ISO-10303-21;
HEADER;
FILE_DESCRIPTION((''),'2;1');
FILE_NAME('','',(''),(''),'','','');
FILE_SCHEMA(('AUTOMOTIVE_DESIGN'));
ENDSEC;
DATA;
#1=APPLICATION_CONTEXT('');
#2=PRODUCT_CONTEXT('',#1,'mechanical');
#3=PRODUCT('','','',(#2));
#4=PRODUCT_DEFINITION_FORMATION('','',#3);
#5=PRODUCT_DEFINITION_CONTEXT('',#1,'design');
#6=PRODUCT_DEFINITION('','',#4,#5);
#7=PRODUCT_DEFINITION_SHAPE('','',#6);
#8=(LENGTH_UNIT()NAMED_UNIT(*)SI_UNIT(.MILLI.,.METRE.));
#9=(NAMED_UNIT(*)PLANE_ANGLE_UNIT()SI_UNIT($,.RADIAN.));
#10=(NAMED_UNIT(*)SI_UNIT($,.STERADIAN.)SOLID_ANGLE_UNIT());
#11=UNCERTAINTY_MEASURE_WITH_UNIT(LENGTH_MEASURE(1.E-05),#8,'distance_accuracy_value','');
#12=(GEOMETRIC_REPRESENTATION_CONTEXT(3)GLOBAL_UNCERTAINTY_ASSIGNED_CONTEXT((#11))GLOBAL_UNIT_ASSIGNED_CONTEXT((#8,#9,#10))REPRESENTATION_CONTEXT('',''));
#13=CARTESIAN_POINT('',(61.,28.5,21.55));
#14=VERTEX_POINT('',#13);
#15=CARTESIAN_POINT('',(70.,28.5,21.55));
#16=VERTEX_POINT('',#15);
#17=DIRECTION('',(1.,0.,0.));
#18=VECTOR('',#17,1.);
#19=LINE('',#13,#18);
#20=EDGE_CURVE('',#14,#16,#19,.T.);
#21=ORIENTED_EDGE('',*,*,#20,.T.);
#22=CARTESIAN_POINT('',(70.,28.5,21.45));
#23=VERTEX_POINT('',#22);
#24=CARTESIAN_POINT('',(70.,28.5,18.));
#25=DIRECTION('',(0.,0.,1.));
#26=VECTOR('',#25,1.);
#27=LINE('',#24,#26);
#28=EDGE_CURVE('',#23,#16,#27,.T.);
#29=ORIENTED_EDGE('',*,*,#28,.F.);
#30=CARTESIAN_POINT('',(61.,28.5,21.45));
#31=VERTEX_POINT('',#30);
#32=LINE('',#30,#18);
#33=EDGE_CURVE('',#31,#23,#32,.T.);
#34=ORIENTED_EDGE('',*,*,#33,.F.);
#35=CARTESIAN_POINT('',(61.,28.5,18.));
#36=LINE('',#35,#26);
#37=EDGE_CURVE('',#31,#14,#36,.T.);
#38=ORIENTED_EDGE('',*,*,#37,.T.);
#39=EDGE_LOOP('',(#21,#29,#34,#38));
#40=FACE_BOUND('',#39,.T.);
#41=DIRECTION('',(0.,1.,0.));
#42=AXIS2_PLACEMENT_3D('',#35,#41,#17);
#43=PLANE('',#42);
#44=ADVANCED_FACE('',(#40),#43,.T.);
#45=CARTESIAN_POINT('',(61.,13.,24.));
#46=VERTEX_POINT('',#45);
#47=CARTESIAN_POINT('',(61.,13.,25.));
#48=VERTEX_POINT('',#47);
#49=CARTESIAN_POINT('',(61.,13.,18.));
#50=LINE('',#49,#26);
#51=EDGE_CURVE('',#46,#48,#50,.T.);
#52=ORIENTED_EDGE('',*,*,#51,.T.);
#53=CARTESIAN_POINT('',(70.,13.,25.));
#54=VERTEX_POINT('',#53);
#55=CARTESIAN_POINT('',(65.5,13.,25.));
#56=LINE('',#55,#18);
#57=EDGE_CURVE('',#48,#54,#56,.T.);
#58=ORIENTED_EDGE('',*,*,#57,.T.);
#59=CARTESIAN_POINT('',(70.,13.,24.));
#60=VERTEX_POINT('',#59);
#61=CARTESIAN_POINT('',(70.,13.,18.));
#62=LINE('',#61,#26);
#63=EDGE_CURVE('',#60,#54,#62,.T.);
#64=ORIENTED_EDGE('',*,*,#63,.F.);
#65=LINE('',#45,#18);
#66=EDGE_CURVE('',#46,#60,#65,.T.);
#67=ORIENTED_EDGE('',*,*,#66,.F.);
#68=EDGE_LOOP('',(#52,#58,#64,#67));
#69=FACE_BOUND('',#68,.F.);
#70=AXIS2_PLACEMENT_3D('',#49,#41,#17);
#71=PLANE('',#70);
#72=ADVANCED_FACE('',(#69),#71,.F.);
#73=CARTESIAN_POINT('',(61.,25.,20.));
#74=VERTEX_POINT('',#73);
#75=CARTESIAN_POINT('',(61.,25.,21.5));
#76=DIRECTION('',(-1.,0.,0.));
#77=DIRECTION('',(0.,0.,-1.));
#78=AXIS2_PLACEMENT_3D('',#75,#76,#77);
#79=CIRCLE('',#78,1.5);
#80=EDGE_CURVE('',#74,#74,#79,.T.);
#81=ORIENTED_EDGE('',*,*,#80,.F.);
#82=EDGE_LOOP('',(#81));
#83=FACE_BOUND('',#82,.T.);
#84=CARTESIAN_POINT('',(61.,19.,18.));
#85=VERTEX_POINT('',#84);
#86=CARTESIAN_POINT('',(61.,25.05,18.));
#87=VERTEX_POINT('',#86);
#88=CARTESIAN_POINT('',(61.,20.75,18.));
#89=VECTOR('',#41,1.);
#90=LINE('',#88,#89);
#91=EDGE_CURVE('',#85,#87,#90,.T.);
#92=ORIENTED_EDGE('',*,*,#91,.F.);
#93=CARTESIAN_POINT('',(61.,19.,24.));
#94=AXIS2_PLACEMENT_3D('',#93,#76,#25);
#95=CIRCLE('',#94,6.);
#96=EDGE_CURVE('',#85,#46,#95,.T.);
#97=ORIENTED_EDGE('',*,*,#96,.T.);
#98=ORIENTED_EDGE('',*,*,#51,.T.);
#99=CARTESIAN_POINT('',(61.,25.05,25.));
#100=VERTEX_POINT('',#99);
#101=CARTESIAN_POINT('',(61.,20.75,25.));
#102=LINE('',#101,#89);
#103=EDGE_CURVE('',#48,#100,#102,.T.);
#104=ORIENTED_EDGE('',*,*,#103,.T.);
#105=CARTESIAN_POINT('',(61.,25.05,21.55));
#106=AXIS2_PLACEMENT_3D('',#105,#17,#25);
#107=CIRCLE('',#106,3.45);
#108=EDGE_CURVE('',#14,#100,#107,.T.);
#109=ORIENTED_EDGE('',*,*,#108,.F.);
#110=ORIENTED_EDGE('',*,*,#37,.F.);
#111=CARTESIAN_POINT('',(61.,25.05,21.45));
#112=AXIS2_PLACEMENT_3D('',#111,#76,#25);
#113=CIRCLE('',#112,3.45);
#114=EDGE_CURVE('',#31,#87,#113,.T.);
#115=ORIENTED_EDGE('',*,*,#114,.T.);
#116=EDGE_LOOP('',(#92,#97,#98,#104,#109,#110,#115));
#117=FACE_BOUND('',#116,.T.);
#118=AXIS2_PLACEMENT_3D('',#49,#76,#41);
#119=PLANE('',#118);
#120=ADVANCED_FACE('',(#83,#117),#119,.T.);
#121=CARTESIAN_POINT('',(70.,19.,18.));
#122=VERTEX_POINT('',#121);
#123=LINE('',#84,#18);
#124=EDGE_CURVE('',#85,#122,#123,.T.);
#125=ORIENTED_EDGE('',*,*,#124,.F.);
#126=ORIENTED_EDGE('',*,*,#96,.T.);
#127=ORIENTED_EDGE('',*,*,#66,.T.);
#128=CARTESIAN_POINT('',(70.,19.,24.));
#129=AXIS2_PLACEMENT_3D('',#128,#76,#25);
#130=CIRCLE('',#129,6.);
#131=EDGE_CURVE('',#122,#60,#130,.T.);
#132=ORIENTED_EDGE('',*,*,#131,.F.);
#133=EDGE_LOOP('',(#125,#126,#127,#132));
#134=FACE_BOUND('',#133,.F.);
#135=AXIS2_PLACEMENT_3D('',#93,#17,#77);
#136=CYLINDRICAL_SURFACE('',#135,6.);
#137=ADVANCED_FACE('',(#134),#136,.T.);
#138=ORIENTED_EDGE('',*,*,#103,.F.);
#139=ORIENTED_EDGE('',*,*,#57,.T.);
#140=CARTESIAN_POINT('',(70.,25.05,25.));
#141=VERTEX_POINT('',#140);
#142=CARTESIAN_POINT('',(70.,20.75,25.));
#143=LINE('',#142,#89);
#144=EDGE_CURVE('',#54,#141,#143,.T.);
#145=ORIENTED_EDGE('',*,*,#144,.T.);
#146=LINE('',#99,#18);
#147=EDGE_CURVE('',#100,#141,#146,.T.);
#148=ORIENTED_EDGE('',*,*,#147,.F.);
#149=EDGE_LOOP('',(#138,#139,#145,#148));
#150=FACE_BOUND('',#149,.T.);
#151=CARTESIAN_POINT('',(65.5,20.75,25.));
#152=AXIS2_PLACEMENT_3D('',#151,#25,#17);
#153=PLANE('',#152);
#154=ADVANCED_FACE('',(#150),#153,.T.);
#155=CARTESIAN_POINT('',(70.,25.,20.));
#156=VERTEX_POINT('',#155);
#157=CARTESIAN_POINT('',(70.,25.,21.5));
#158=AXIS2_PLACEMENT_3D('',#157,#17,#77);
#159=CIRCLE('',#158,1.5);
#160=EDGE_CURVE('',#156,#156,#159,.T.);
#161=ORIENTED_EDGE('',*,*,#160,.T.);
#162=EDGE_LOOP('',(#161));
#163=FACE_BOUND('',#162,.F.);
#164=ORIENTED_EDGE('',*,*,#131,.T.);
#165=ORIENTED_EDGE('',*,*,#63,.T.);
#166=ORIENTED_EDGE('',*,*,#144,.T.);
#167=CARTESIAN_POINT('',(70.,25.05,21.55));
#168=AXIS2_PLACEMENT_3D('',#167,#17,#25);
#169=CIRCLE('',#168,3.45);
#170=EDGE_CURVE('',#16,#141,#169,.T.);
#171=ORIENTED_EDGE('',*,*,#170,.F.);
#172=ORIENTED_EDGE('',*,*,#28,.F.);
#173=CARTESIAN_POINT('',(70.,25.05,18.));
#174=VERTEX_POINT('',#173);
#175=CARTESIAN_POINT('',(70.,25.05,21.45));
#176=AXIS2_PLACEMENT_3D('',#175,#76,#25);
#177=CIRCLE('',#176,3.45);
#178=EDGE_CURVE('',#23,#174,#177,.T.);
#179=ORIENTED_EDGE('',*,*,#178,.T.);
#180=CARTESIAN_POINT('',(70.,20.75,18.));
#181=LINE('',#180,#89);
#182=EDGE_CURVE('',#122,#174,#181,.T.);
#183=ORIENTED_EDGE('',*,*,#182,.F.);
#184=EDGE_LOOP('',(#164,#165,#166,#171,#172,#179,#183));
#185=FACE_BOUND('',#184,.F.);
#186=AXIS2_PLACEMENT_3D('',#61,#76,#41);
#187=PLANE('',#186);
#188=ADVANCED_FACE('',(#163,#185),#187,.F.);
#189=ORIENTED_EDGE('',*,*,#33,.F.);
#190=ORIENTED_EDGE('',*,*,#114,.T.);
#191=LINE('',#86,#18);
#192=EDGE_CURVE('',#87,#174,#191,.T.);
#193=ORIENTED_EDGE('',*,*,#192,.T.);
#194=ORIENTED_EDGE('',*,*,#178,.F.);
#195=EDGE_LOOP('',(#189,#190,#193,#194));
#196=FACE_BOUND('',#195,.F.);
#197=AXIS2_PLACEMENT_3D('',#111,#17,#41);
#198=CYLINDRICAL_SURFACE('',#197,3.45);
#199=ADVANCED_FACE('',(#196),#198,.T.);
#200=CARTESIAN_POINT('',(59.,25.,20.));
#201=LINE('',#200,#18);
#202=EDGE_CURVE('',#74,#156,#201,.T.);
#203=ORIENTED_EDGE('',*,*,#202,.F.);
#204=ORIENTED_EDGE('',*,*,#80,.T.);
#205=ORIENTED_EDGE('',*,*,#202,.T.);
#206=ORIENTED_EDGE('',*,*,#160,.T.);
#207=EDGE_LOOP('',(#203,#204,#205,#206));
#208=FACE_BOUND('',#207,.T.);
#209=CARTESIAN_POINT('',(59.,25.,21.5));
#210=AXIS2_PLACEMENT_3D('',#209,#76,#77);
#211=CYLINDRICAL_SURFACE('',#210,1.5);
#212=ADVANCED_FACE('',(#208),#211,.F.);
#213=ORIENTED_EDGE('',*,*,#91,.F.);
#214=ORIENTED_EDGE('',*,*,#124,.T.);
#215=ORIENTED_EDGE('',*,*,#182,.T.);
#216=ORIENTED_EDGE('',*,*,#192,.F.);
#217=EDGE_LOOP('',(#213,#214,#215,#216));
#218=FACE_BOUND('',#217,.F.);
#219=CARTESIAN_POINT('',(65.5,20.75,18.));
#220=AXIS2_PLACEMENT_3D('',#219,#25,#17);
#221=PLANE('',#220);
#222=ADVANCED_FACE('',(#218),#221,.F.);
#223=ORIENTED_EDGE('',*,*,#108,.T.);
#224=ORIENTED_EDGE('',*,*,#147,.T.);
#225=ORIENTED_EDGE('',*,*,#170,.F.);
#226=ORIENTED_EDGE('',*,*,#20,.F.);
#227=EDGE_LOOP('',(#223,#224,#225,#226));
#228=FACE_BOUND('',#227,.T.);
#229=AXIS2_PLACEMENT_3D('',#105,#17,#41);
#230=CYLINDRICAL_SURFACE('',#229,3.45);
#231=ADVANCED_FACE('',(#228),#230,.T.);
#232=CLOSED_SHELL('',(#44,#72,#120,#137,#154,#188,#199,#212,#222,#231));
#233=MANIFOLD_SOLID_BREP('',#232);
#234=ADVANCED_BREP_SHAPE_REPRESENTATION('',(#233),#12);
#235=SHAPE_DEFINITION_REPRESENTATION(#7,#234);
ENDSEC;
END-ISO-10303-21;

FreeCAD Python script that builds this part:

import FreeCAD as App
import Part
import Sketcher

V = App.Vector
Q = App.Units.Quantity


def edges_at(feature, points):
    """Names of the edges that pass closest to the given points."""
    edges = feature.Shape.Edges
    near = lambda p: min(range(len(edges)), key=lambda i: edges[i].distToShape(Part.Vertex(*p))[0])
    return sorted({f"Edge{near(p) + 1}" for p in points})


def add_polygon(sketch, points):
    """Adds a closed chain of lines whose ends are joined by coincident constraints."""
    first, n = sketch.GeometryCount, len(points)
    for a, b in zip(points, points[1:] + points[:1]):
        sketch.addGeometry(Part.LineSegment(App.Vector(*a, 0), App.Vector(*b, 0)), False)
    for i in range(n):
        sketch.addConstraint(Sketcher.Constraint("Coincident", first + i, 2, first + (i + 1) % n, 1))

doc = App.newDocument("Part")
body = doc.addObject("PartDesign::Body", "Body")

sketch1 = body.newObject("Sketcher::SketchObject", "Sketch")
sketch1.AttachmentSupport = (doc.getObject("YZ_Plane"), [""])
sketch1.MapMode = "FlatFace"
sketch1.AttachmentOffset = App.Placement(V(0, 0, 59), App.Rotation())
sketch1.addGeometry(Part.Circle(V(25, 21.5, 0), V(0, 0, 1), 1.5), False)
sketch1.addConstraint([
    Sketcher.Constraint("Diameter", 0, Q("3 mm")),
    Sketcher.Constraint("DistanceX", -1, 1, 0, 3, Q("25 mm")),
    Sketcher.Constraint("DistanceY", -1, 1, 0, 3, Q("21.5 mm")),
])
pad1 = body.newObject("PartDesign::Pad", "Pad")
pad1.Profile = sketch1
pad1.Length = 11
body2 = doc.addObject("PartDesign::Body", "Body001")

sketch2 = body2.newObject("Sketcher::SketchObject", "Sketch001")
sketch2.AttachmentSupport = (doc.getObject("XY_Plane001"), [""])
sketch2.MapMode = "FlatFace"
sketch2.AttachmentOffset = App.Placement(V(0, 0, 18), App.Rotation())
add_polygon(sketch2, [(61, 28), (61, 13), (70, 13), (70, 28)])
sketch2.addConstraint([
    Sketcher.Constraint("Vertical", 0),
    Sketcher.Constraint("Horizontal", 1),
    Sketcher.Constraint("Vertical", 2),
    Sketcher.Constraint("Horizontal", 3),
    Sketcher.Constraint("DistanceX", 1, 1, 1, 2, Q("9 mm")),
    Sketcher.Constraint("DistanceY", 0, 2, 0, 1, Q("15.5 mm")),
    Sketcher.Constraint("DistanceX", -1, 1, 0, 2, Q("61 mm")),
    Sketcher.Constraint("DistanceY", -1, 1, 0, 2, Q("13 mm")),
])
pad2 = body2.newObject("PartDesign::Pad", "Pad001")
pad2.Profile = sketch2
pad2.Length = 7
doc.recompute()

fillet = body2.newObject("PartDesign::Fillet", "Fillet")
fillet.Base = (pad2, edges_at(pad2, [(65.5, 28.5, 18), (65.5, 28.5, 25)]))
fillet.Radius = 3.45
doc.recompute()

fillet2 = body2.newObject("PartDesign::Fillet", "Fillet001")
fillet2.Base = (fillet, edges_at(fillet, [(65.5, 13, 18)]))
fillet2.Radius = 6
doc.recompute()

boolean = body2.newObject("PartDesign::Boolean", "Boolean")
boolean.Type = "Cut"
boolean.addObjects([body])

doc.recompute()
